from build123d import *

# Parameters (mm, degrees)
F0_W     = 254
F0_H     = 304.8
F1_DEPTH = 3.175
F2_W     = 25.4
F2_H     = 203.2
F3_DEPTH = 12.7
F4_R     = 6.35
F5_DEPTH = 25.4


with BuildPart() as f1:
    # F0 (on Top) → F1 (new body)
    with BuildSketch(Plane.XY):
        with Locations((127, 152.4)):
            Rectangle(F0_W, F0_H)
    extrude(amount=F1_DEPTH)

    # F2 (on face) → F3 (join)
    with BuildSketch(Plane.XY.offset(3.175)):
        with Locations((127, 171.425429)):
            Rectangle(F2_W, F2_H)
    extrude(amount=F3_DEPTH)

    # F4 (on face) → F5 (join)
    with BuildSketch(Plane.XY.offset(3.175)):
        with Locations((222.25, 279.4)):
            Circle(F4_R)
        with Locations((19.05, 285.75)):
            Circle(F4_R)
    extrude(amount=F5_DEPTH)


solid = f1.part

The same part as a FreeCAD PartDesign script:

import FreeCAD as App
import Part
import Sketcher
Q = App.Units.Quantity


def add_polygon(sketch, points):
    """Adds a closed chain of lines whose ends are joined by coincident constraints."""
    first, n = sketch.GeometryCount, len(points)
    for a, b in zip(points, points[1:] + points[:1]):
        sketch.addGeometry(Part.LineSegment(App.Vector(*a, 0), App.Vector(*b, 0)), False)
    for i in range(n):
        sketch.addConstraint(Sketcher.Constraint("Coincident", first + i, 2, first + (i + 1) % n, 1))

doc = App.newDocument("Part")
params = doc.addObject("Spreadsheet::Sheet", "Params")
for row, (alias, value) in enumerate([
    ("sketch1_width", "10 in"),
    ("sketch1_height", "12 in"),
    ("pad1_length", "0.125 in"),
    ("sketch2_width", "1 in"),
    ("sketch2_height", "8 in"),
    ("pad2_length", "0.5 in"),
    ("sketch3_diameter", "0.5 in"),
    ("pad3_length", "1 in"),
], start=1):
    params.set(f"A{row}", alias)
    params.set(f"B{row}", "=" + value)
    params.setAlias(f"B{row}", alias)

body = doc.addObject("PartDesign::Body", "Body")

sketch1 = doc.addObject("Sketcher::SketchObject", "Sketch")
body.addObject(sketch1)
sketch1.AttachmentSupport = (doc.XY_Plane, [""])
sketch1.MapMode = "FlatFace"
add_polygon(sketch1, [(0, 305), (0, 0), (254, 0), (254, 305)])
sketch1.addConstraint([
    Sketcher.Constraint("Vertical", 0),
    Sketcher.Constraint("Horizontal", 1),
    Sketcher.Constraint("Vertical", 2),
    Sketcher.Constraint("Horizontal", 3),
    Sketcher.Constraint("Coincident", 0, 2, -1, 1),
    Sketcher.Constraint("DistanceX", 1, 1, 1, 2, Q("10 in")),
    Sketcher.Constraint("DistanceY", 0, 2, 0, 1, Q("12 in")),
])
sketch1.setExpression("Constraints[9]", "Params.sketch1_width")
sketch1.setExpression("Constraints[10]", "Params.sketch1_height")
pad1 = doc.addObject("PartDesign::Pad", "Pad")
body.addObject(pad1)
pad1.Profile = sketch1
pad1.setExpression("Length", "Params.pad1_length")

sketch2 = doc.addObject("Sketcher::SketchObject", "Sketch001")
body.addObject(sketch2)
sketch2.AttachmentSupport = (doc.XY_Plane, [""])
sketch2.MapMode = "FlatFace"
sketch2.AttachmentOffset = App.Placement(App.Vector(0, 0, 0.125 * 25.4), App.Rotation())
add_polygon(sketch2, [(114, 273), (114, 70), (140, 70), (140, 273)])
sketch2.addConstraint([
    Sketcher.Constraint("Vertical", 0),
    Sketcher.Constraint("Horizontal", 1),
    Sketcher.Constraint("Vertical", 2),
    Sketcher.Constraint("Horizontal", 3),
    Sketcher.Constraint("DistanceX", 1, 1, 1, 2, Q("1 in")),
    Sketcher.Constraint("DistanceY", 0, 2, 0, 1, Q("8 in")),
    Sketcher.Constraint("DistanceX", -1, 1, 0, 2, Q("4.5 in")),
    Sketcher.Constraint("DistanceY", -1, 1, 0, 2, 69.825429),
])
sketch2.setExpression("Constraints[8]", "Params.sketch2_width")
sketch2.setExpression("Constraints[9]", "Params.sketch2_height")
pad2 = doc.addObject("PartDesign::Pad", "Pad001")
body.addObject(pad2)
pad2.Profile = sketch2
pad2.setExpression("Length", "Params.pad2_length")

sketch3 = doc.addObject("Sketcher::SketchObject", "Sketch002")
body.addObject(sketch3)
sketch3.AttachmentSupport = (doc.XY_Plane, [""])
sketch3.MapMode = "FlatFace"
sketch3.AttachmentOffset = App.Placement(App.Vector(0, 0, 0.125 * 25.4), App.Rotation())
sketch3.addGeometry([
    Part.Circle(App.Vector(222, 279, 0), App.Vector(0, 0, 1), 6),
    Part.Circle(App.Vector(19, 286, 0), App.Vector(0, 0, 1), 6),
], False)
sketch3.addConstraint([
    Sketcher.Constraint("Equal", 0, 1),
    Sketcher.Constraint("Diameter", 0, Q("0.5 in")),
    Sketcher.Constraint("DistanceY", -1, 1, 0, 3, Q("11 in")),
    Sketcher.Constraint("DistanceX", 1, 3, 0, 3, Q("8 in")),
    Sketcher.Constraint("DistanceX", -1, 1, 0, 3, Q("8.75 in")),
    Sketcher.Constraint("DistanceY", -1, 1, 1, 3, Q("11.25 in")),
])
sketch3.setExpression("Constraints[1]", "Params.sketch3_diameter")
pad3 = doc.addObject("PartDesign::Pad", "Pad002")
body.addObject(pad3)
pad3.Profile = sketch3
pad3.setExpression("Length", "Params.pad3_length")

doc.recompute()
